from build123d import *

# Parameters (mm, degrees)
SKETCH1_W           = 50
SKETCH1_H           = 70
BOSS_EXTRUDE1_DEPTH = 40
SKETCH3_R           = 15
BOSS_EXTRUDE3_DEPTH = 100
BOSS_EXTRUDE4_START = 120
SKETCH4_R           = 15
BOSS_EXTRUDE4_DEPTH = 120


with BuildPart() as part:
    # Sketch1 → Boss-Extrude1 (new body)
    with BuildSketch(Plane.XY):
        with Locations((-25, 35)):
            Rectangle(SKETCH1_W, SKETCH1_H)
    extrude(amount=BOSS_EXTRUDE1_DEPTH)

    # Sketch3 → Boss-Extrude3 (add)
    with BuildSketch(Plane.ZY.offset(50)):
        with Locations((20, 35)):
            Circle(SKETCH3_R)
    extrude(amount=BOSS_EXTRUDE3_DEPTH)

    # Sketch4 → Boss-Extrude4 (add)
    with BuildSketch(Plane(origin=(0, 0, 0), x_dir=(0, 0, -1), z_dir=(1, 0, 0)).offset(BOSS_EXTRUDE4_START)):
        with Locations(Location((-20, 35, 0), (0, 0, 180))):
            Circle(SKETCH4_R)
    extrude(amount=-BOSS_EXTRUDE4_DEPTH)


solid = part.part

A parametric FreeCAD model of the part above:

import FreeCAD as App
import Part
import Sketcher
Q = App.Units.Quantity


def add_polygon(sketch, points):
    """Adds a closed chain of lines whose ends are joined by coincident constraints."""
    first, n = sketch.GeometryCount, len(points)
    for a, b in zip(points, points[1:] + points[:1]):
        sketch.addGeometry(Part.LineSegment(App.Vector(*a, 0), App.Vector(*b, 0)), False)
    for i in range(n):
        sketch.addConstraint(Sketcher.Constraint("Coincident", first + i, 2, first + (i + 1) % n, 1))

doc = App.newDocument("Part")
body = doc.addObject("PartDesign::Body", "Body")

sketch1 = body.newObject("Sketcher::SketchObject", "Sketch")
sketch1.AttachmentSupport = (doc.getObject("XY_Plane"), [""])
sketch1.MapMode = "FlatFace"
add_polygon(sketch1, [(-50, 70), (-50, 0), (0, 0), (0, 70)])
sketch1.addConstraint([
    Sketcher.Constraint("Vertical", 0),
    Sketcher.Constraint("Horizontal", 1),
    Sketcher.Constraint("Vertical", 2),
    Sketcher.Constraint("Horizontal", 3),
    Sketcher.Constraint("Coincident", 1, 2, -1, 1),
    Sketcher.Constraint("DistanceX", 1, 1, 1, 2, Q("50 mm")),
    Sketcher.Constraint("DistanceY", 0, 2, 0, 1, Q("70 mm")),
])
pad1 = body.newObject("PartDesign::Pad", "Pad")
pad1.Profile = sketch1
pad1.Length = 40

sketch2 = body.newObject("Sketcher::SketchObject", "Sketch001")
sketch2.AttachmentSupport = (doc.getObject("YZ_Plane"), [""])
sketch2.MapMode = "FlatFace"
sketch2.AttachmentOffset = App.Placement(App.Vector(0, 0, -50), App.Rotation())
sketch2.addGeometry(Part.Circle(App.Vector(35, 20, 0), App.Vector(0, 0, 1), 15), False)
sketch2.addConstraint([
    Sketcher.Constraint("Diameter", 0, Q("30 mm")),
    Sketcher.Constraint("DistanceX", -1, 1, 0, 3, Q("35 mm")),
    Sketcher.Constraint("DistanceY", -1, 1, 0, 3, Q("20 mm")),
])
pad2 = body.newObject("PartDesign::Pad", "Pad001")
pad2.Profile = sketch2
pad2.Length = 100
pad2.Reversed = True

sketch3 = body.newObject("Sketcher::SketchObject", "Sketch002")
sketch3.AttachmentSupport = (doc.getObject("YZ_Plane"), [""])
sketch3.MapMode = "FlatFace"
sketch3.AttachmentOffset = App.Placement(App.Vector(0, 0, 120), App.Rotation())
sketch3.addGeometry(Part.Circle(App.Vector(35, 20, 0), App.Vector(0, 0, 1), 15), False)
sketch3.addConstraint([
    Sketcher.Constraint("Diameter", 0, Q("30 mm")),
    Sketcher.Constraint("DistanceX", -1, 1, 0, 3, Q("35 mm")),
    Sketcher.Constraint("DistanceY", -1, 1, 0, 3, Q("20 mm")),
])
pad3 = body.newObject("PartDesign::Pad", "Pad002")
pad3.Profile = sketch3
pad3.Length = 120
pad3.Reversed = True

doc.recompute()
